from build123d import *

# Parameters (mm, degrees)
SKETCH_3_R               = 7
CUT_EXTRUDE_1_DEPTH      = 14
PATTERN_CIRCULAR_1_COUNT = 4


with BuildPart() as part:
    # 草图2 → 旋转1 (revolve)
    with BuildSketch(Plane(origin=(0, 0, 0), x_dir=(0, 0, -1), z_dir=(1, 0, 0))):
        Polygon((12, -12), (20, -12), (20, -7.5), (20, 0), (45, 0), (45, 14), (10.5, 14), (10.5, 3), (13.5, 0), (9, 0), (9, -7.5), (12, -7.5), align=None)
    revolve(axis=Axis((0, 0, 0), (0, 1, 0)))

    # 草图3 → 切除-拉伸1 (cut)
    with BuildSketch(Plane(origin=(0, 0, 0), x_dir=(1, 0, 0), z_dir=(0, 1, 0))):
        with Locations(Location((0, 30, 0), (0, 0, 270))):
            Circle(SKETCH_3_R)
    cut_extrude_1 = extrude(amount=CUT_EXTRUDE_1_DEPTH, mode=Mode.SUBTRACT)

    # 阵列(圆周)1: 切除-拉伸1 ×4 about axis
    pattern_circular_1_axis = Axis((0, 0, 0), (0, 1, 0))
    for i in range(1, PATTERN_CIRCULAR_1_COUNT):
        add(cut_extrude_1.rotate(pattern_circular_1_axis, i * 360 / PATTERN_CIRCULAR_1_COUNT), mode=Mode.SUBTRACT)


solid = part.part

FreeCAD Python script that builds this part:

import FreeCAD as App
import Part
import Sketcher
from FreeCAD import Vector
Q = App.Units.Quantity


def add_polygon(sketch, points):
    """Adds a closed chain of lines whose ends are joined by coincident constraints."""
    first, n = sketch.GeometryCount, len(points)
    for a, b in zip(points, points[1:] + points[:1]):
        sketch.addGeometry(Part.LineSegment(App.Vector(*a, 0), App.Vector(*b, 0)), False)
    for i in range(n):
        sketch.addConstraint(Sketcher.Constraint("Coincident", first + i, 2, first + (i + 1) % n, 1))

doc = App.newDocument("Part")
body = doc.addObject("PartDesign::Body", "Body")

# Sketch on YZ plane
sketch1 = body.newObject("Sketcher::SketchObject", "Sketch")
sketch1.AttachmentSupport = (doc.getObject("YZ_Plane"), [""])
sketch1.MapMode = "FlatFace"
add_polygon(sketch1, [(-12, -12), (-12, -20), (0, -20), (0, -45), (14, -45), (14, -10.5), (3, -10.5), (0, -13.5), (0, -9), (-7.5, -9), (-7.5, -12)])  # lines 0-10
sketch1.addConstraint(Sketcher.Constraint("Vertical", 0))
sketch1.addConstraint(Sketcher.Constraint("Horizontal", 1))
sketch1.addConstraint(Sketcher.Constraint("Vertical", 2))
sketch1.addConstraint(Sketcher.Constraint("Horizontal", 3))
sketch1.addConstraint(Sketcher.Constraint("Vertical", 4))
sketch1.addConstraint(Sketcher.Constraint("Horizontal", 5))
sketch1.addConstraint(Sketcher.Constraint("Vertical", 7))
sketch1.addConstraint(Sketcher.Constraint("Horizontal", 8))
sketch1.addConstraint(Sketcher.Constraint("Vertical", 9))
sketch1.addConstraint(Sketcher.Constraint("Horizontal", 10))
sketch1.addConstraint(Sketcher.Constraint("PointOnObject", 1, 2, -2))
sketch1.addConstraint(Sketcher.Constraint("PointOnObject", 6, 2, -2))
sketch1.addConstraint(Sketcher.Constraint("Equal", 10, 7))
sketch1.addConstraint(Sketcher.Constraint("DistanceX", 1, 1, 1, 2, Q("12 mm")))
sketch1.addConstraint(Sketcher.Constraint("DistanceX", 3, 1, 3, 2, Q("14 mm")))
sketch1.addConstraint(Sketcher.Constraint("DistanceX", 5, 2, 5, 1, Q("11 mm")))
sketch1.addConstraint(Sketcher.Constraint("DistanceY", 0, 2, 0, 1, Q("8 mm")))
sketch1.addConstraint(Sketcher.Constraint("DistanceY", 2, 2, 2, 1, Q("25 mm")))
sketch1.addConstraint(Sketcher.Constraint("DistanceY", 9, 2, 9, 1, Q("3 mm")))
sketch1.addConstraint(Sketcher.Constraint("Angle", 6, Q("-135 deg")))
sketch1.addConstraint(Sketcher.Constraint("DistanceX", 8, 2, 8, 1, Q("7.5 mm")))
sketch1.addConstraint(Sketcher.Constraint("DistanceY", 0, 2, -1, 1, Q("20 mm")))
revolution = body.newObject("PartDesign::Revolution", "Revolution")
revolution.Profile = sketch1
revolution.ReferenceAxis = (sketch1, ["H_Axis"])
revolution.Angle = 360

# Sketch on XZ plane
sketch2 = body.newObject("Sketcher::SketchObject", "Sketch001")
sketch2.AttachmentSupport = (doc.getObject("XZ_Plane"), [""])
sketch2.MapMode = "FlatFace"
sketch2.addGeometry(Part.Circle(Vector(0, -30, 0), Vector(0, 0, 1), 7), False)
sketch2.addConstraint(Sketcher.Constraint("PointOnObject", 0, 3, -2))
sketch2.addConstraint(Sketcher.Constraint("Diameter", 0, Q("14 mm")))
sketch2.addConstraint(Sketcher.Constraint("DistanceY", 0, 3, -1, 1, Q("30 mm")))
pocket1 = body.newObject("PartDesign::Pocket", "Pocket")
pocket1.Profile = sketch2
pocket1.Length = 14
doc.recompute()

polarpattern = body.newObject("PartDesign::PolarPattern", "PolarPattern")
polarpattern.Originals = [pocket1]
polarpattern.Axis = (doc.getObject("Y_Axis"), [""])
polarpattern.Angle = 360
polarpattern.Occurrences = 4
body.Tip = polarpattern

doc.recompute()
